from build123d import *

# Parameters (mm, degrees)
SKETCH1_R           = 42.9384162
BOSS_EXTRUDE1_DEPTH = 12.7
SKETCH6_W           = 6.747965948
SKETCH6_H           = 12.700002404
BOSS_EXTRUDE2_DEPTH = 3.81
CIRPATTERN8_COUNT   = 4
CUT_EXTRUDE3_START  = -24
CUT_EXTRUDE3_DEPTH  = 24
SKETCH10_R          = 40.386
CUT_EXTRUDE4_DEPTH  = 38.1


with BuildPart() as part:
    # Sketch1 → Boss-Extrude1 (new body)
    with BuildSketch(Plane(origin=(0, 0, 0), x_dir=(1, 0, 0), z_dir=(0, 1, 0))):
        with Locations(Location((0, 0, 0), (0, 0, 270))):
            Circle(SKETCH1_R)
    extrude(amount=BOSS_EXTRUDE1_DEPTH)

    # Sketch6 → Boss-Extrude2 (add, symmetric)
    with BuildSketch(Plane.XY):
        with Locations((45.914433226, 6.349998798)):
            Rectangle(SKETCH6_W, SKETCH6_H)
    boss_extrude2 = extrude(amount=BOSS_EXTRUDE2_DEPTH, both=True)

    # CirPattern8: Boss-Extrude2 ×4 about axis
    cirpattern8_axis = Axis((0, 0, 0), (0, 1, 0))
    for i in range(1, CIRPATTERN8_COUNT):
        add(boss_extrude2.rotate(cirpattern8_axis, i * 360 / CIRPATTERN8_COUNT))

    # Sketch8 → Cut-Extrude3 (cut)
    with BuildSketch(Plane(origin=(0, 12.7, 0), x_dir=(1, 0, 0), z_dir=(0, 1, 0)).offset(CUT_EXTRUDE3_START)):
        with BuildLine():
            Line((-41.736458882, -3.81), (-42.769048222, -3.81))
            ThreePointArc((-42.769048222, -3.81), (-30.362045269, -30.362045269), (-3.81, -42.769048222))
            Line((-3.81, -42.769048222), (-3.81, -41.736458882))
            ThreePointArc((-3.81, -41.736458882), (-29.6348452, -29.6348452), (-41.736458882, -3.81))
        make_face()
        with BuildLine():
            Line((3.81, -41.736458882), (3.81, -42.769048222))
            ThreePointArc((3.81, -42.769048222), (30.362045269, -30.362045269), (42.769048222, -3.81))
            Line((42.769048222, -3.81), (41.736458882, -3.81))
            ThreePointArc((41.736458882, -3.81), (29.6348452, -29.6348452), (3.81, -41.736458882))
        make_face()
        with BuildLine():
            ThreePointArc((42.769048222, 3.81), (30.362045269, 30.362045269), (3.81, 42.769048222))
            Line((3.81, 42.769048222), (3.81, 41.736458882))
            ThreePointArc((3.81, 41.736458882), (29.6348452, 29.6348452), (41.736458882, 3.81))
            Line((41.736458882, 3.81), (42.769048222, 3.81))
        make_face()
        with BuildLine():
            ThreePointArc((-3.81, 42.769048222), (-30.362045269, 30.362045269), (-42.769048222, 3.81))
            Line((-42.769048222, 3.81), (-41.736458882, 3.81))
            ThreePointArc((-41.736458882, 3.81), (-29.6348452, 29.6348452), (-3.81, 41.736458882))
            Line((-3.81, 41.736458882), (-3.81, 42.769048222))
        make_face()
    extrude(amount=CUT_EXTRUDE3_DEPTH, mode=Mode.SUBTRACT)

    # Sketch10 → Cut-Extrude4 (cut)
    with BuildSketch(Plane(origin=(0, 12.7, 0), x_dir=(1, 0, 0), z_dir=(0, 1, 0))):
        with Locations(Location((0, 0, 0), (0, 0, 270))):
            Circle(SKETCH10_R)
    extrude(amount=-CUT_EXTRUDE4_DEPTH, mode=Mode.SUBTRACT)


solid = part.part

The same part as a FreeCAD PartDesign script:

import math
import FreeCAD as App
import Part
import Sketcher
from FreeCAD import Vector
Q = App.Units.Quantity


def add_polygon(sketch, points):
    """Adds a closed chain of lines whose ends are joined by coincident constraints."""
    first, n = sketch.GeometryCount, len(points)
    for a, b in zip(points, points[1:] + points[:1]):
        sketch.addGeometry(Part.LineSegment(App.Vector(*a, 0), App.Vector(*b, 0)), False)
    for i in range(n):
        sketch.addConstraint(Sketcher.Constraint("Coincident", first + i, 2, first + (i + 1) % n, 1))

doc = App.newDocument("Part")
body = doc.addObject("PartDesign::Body", "Body")

# Sketch on XZ plane
sketch1 = body.newObject("Sketcher::SketchObject", "Sketch")
sketch1.AttachmentSupport = (doc.getObject("XZ_Plane"), [""])
sketch1.MapMode = "FlatFace"
sketch1.addGeometry(Part.Circle(Vector(0, 0, 0), Vector(0, 0, 1), 43), False)
sketch1.addConstraint([
    Sketcher.Constraint("Coincident", 0, 3, -1, 1),
    Sketcher.Constraint("Diameter", 0, Q("85.876832 mm")),
])
pad1 = body.newObject("PartDesign::Pad", "Pad")
pad1.Profile = sketch1
pad1.Length = Q("0.5 in")
pad1.Reversed = True

# Sketch on XY plane
sketch2 = body.newObject("Sketcher::SketchObject", "Sketch001")
sketch2.AttachmentSupport = (doc.getObject("XY_Plane"), [""])
sketch2.MapMode = "FlatFace"
add_polygon(sketch2, [(43, 13), (43, 0), (49, 0), (49, 13)])  # lines 0-3
sketch2.addConstraint([
    Sketcher.Constraint("Vertical", 0),
    Sketcher.Constraint("Horizontal", 1),
    Sketcher.Constraint("Vertical", 2),
    Sketcher.Constraint("Horizontal", 3),
    Sketcher.Constraint("DistanceY", 0, 2, 0, 1, Q("0.5000001 in")),
    Sketcher.Constraint("DistanceY", -1, 1, 2, 2, Q("0.5 in")),
    Sketcher.Constraint("DistanceX", 1, 1, 1, 2, Q("6.747966 mm")),
    Sketcher.Constraint("DistanceX", -1, 1, 0, 2, Q("42.54045 mm")),
])
pad2 = body.newObject("PartDesign::Pad", "Pad001")
pad2.Profile = sketch2
pad2.Length = Q("0.3 in")
pad2.Midplane = True
doc.recompute()

polarpattern = body.newObject("PartDesign::PolarPattern", "PolarPattern")
polarpattern.Originals = [pad2]
polarpattern.Axis = (doc.getObject("Y_Axis"), [""])
polarpattern.Angle = 360
polarpattern.Occurrences = 4
body.Tip = polarpattern

# Sketch on XZ plane
sketch3 = body.newObject("Sketcher::SketchObject", "Sketch002")
sketch3.AttachmentSupport = (doc.getObject("XZ_Plane"), [""])
sketch3.MapMode = "FlatFace"
sketch3.AttachmentOffset = App.Placement(Vector(0, 0, 11.3), App.Rotation())
sketch3.addGeometry([
    Part.LineSegment(Vector(-41.7, 3.8, 0), Vector(-42.8, 3.8, 0)),  # 0
    Part.ArcOfCircle(Part.Circle(Vector(0, 0, 0), Vector(0, 0, 1), 42.9), math.radians(95), math.radians(175)),  # 1
    Part.LineSegment(Vector(-3.8, 42.8, 0), Vector(-3.8, 41.7, 0)),  # 2
    Part.ArcOfCircle(Part.Circle(Vector(0, 0, 0), Vector(0, 0, 1), 41.9), math.radians(95), math.radians(175)),  # 3
    Part.LineSegment(Vector(3.8, 41.7, 0), Vector(3.8, 42.8, 0)),  # 4
    Part.ArcOfCircle(Part.Circle(Vector(0, 0, 0), Vector(0, 0, 1), 42.9), math.radians(5), math.radians(85)),  # 5
    Part.LineSegment(Vector(42.8, 3.8, 0), Vector(41.7, 3.8, 0)),  # 6
    Part.ArcOfCircle(Part.Circle(Vector(0, 0, 0), Vector(0, 0, 1), 41.9), math.radians(5), math.radians(85)),  # 7
    Part.ArcOfCircle(Part.Circle(Vector(0, 0, 0), Vector(0, 0, 1), 42.9), math.radians(-85), math.radians(-5)),  # 8
    Part.LineSegment(Vector(3.8, -42.8, 0), Vector(3.8, -41.7, 0)),  # 9
    Part.ArcOfCircle(Part.Circle(Vector(0, 0, 0), Vector(0, 0, 1), 41.9), math.radians(-85), math.radians(-5)),  # 10
    Part.LineSegment(Vector(41.7, -3.8, 0), Vector(42.8, -3.8, 0)),  # 11
    Part.ArcOfCircle(Part.Circle(Vector(0, 0, 0), Vector(0, 0, 1), 42.9), math.radians(-175), math.radians(-95)),  # 12
    Part.LineSegment(Vector(-42.8, -3.8, 0), Vector(-41.7, -3.8, 0)),  # 13
    Part.ArcOfCircle(Part.Circle(Vector(0, 0, 0), Vector(0, 0, 1), 41.9), math.radians(-175), math.radians(-95)),  # 14
    Part.LineSegment(Vector(-3.8, -41.7, 0), Vector(-3.8, -42.8, 0)),  # 15
], False)
sketch3.addConstraint([
    Sketcher.Constraint("Coincident", 0, 2, 1, 2),
    Sketcher.Constraint("Coincident", 1, 1, 2, 1),
    Sketcher.Constraint("Coincident", 2, 2, 3, 1),
    Sketcher.Constraint("Coincident", 3, 2, 0, 1),
    Sketcher.Constraint("Coincident", 4, 2, 5, 2),
    Sketcher.Constraint("Coincident", 5, 1, 6, 1),
    Sketcher.Constraint("Coincident", 6, 2, 7, 1),
    Sketcher.Constraint("Coincident", 7, 2, 4, 1),
    Sketcher.Constraint("Coincident", 8, 1, 9, 1),
    Sketcher.Constraint("Coincident", 9, 2, 10, 1),
    Sketcher.Constraint("Coincident", 10, 2, 11, 1),
    Sketcher.Constraint("Coincident", 11, 2, 8, 2),
    Sketcher.Constraint("Coincident", 12, 1, 13, 1),
    Sketcher.Constraint("Coincident", 13, 2, 14, 1),
    Sketcher.Constraint("Coincident", 14, 2, 15, 1),
    Sketcher.Constraint("Coincident", 15, 2, 12, 2),
    Sketcher.Constraint("Horizontal", 0),
    Sketcher.Constraint("Vertical", 2),
    Sketcher.Constraint("Vertical", 4),
    Sketcher.Constraint("Horizontal", 6),
    Sketcher.Constraint("Vertical", 9),
    Sketcher.Constraint("Horizontal", 11),
    Sketcher.Constraint("Horizontal", 13),
    Sketcher.Constraint("Vertical", 15),
    Sketcher.Constraint("Coincident", 1, 3, -1, 1),
    Sketcher.Constraint("Coincident", 3, 3, -1, 1),
    Sketcher.Constraint("Coincident", 5, 3, -1, 1),
    Sketcher.Constraint("Coincident", 7, 3, -1, 1),
    Sketcher.Constraint("Coincident", 8, 3, -1, 1),
    Sketcher.Constraint("Coincident", 10, 3, -1, 1),
    Sketcher.Constraint("Coincident", 12, 3, -1, 1),
    Sketcher.Constraint("Coincident", 14, 3, -1, 1),
    Sketcher.Constraint("Equal", 1, 5),
    Sketcher.Constraint("Equal", 3, 7),
    Sketcher.Constraint("Equal", 5, 8),
    Sketcher.Constraint("Equal", 7, 10),
    Sketcher.Constraint("Equal", 8, 12),
    Sketcher.Constraint("Equal", 10, 14),
    Sketcher.Constraint("Horizontal", 1, 1, 4, 2),
    Sketcher.Constraint("Horizontal", 3, 2, 5, 1),
    Sketcher.Constraint("Horizontal", 11, 2, 12, 1),
    Sketcher.Constraint("Horizontal", 9, 2, 14, 2),
    Sketcher.Constraint("Vertical", 7, 2, 8, 1),
    Sketcher.Constraint("Vertical", 6, 2, 10, 2),
    Sketcher.Constraint("Radius", 3, Q("1.65 in")),
    Sketcher.Constraint("DistanceX", 1, 1, 4, 2, Q("0.3 in")),
    Sketcher.Constraint("DistanceY", 10, 2, 6, 2, Q("0.3 in")),
    Sketcher.Constraint("Radius", 1, Q("42.938416 mm")),
])
pocket1 = body.newObject("PartDesign::Pocket", "Pocket")
pocket1.Profile = sketch3
pocket1.Length = 24

# Sketch on XZ plane
sketch4 = body.newObject("Sketcher::SketchObject", "Sketch003")
sketch4.AttachmentSupport = (doc.getObject("XZ_Plane"), [""])
sketch4.MapMode = "FlatFace"
sketch4.AttachmentOffset = App.Placement(Vector(0, 0, -0.5 * 25.4), App.Rotation())
sketch4.addGeometry(Part.Circle(Vector(0, 0, 0), Vector(0, 0, 1), 40), False)
sketch4.addConstraint([
    Sketcher.Constraint("Coincident", 0, 3, -1, 1),
    Sketcher.Constraint("Diameter", 0, Q("3.18 in")),
])
pocket2 = body.newObject("PartDesign::Pocket", "Pocket001")
pocket2.Profile = sketch4
pocket2.Length = Q("1.5 in")
pocket2.Reversed = True

doc.recompute()
